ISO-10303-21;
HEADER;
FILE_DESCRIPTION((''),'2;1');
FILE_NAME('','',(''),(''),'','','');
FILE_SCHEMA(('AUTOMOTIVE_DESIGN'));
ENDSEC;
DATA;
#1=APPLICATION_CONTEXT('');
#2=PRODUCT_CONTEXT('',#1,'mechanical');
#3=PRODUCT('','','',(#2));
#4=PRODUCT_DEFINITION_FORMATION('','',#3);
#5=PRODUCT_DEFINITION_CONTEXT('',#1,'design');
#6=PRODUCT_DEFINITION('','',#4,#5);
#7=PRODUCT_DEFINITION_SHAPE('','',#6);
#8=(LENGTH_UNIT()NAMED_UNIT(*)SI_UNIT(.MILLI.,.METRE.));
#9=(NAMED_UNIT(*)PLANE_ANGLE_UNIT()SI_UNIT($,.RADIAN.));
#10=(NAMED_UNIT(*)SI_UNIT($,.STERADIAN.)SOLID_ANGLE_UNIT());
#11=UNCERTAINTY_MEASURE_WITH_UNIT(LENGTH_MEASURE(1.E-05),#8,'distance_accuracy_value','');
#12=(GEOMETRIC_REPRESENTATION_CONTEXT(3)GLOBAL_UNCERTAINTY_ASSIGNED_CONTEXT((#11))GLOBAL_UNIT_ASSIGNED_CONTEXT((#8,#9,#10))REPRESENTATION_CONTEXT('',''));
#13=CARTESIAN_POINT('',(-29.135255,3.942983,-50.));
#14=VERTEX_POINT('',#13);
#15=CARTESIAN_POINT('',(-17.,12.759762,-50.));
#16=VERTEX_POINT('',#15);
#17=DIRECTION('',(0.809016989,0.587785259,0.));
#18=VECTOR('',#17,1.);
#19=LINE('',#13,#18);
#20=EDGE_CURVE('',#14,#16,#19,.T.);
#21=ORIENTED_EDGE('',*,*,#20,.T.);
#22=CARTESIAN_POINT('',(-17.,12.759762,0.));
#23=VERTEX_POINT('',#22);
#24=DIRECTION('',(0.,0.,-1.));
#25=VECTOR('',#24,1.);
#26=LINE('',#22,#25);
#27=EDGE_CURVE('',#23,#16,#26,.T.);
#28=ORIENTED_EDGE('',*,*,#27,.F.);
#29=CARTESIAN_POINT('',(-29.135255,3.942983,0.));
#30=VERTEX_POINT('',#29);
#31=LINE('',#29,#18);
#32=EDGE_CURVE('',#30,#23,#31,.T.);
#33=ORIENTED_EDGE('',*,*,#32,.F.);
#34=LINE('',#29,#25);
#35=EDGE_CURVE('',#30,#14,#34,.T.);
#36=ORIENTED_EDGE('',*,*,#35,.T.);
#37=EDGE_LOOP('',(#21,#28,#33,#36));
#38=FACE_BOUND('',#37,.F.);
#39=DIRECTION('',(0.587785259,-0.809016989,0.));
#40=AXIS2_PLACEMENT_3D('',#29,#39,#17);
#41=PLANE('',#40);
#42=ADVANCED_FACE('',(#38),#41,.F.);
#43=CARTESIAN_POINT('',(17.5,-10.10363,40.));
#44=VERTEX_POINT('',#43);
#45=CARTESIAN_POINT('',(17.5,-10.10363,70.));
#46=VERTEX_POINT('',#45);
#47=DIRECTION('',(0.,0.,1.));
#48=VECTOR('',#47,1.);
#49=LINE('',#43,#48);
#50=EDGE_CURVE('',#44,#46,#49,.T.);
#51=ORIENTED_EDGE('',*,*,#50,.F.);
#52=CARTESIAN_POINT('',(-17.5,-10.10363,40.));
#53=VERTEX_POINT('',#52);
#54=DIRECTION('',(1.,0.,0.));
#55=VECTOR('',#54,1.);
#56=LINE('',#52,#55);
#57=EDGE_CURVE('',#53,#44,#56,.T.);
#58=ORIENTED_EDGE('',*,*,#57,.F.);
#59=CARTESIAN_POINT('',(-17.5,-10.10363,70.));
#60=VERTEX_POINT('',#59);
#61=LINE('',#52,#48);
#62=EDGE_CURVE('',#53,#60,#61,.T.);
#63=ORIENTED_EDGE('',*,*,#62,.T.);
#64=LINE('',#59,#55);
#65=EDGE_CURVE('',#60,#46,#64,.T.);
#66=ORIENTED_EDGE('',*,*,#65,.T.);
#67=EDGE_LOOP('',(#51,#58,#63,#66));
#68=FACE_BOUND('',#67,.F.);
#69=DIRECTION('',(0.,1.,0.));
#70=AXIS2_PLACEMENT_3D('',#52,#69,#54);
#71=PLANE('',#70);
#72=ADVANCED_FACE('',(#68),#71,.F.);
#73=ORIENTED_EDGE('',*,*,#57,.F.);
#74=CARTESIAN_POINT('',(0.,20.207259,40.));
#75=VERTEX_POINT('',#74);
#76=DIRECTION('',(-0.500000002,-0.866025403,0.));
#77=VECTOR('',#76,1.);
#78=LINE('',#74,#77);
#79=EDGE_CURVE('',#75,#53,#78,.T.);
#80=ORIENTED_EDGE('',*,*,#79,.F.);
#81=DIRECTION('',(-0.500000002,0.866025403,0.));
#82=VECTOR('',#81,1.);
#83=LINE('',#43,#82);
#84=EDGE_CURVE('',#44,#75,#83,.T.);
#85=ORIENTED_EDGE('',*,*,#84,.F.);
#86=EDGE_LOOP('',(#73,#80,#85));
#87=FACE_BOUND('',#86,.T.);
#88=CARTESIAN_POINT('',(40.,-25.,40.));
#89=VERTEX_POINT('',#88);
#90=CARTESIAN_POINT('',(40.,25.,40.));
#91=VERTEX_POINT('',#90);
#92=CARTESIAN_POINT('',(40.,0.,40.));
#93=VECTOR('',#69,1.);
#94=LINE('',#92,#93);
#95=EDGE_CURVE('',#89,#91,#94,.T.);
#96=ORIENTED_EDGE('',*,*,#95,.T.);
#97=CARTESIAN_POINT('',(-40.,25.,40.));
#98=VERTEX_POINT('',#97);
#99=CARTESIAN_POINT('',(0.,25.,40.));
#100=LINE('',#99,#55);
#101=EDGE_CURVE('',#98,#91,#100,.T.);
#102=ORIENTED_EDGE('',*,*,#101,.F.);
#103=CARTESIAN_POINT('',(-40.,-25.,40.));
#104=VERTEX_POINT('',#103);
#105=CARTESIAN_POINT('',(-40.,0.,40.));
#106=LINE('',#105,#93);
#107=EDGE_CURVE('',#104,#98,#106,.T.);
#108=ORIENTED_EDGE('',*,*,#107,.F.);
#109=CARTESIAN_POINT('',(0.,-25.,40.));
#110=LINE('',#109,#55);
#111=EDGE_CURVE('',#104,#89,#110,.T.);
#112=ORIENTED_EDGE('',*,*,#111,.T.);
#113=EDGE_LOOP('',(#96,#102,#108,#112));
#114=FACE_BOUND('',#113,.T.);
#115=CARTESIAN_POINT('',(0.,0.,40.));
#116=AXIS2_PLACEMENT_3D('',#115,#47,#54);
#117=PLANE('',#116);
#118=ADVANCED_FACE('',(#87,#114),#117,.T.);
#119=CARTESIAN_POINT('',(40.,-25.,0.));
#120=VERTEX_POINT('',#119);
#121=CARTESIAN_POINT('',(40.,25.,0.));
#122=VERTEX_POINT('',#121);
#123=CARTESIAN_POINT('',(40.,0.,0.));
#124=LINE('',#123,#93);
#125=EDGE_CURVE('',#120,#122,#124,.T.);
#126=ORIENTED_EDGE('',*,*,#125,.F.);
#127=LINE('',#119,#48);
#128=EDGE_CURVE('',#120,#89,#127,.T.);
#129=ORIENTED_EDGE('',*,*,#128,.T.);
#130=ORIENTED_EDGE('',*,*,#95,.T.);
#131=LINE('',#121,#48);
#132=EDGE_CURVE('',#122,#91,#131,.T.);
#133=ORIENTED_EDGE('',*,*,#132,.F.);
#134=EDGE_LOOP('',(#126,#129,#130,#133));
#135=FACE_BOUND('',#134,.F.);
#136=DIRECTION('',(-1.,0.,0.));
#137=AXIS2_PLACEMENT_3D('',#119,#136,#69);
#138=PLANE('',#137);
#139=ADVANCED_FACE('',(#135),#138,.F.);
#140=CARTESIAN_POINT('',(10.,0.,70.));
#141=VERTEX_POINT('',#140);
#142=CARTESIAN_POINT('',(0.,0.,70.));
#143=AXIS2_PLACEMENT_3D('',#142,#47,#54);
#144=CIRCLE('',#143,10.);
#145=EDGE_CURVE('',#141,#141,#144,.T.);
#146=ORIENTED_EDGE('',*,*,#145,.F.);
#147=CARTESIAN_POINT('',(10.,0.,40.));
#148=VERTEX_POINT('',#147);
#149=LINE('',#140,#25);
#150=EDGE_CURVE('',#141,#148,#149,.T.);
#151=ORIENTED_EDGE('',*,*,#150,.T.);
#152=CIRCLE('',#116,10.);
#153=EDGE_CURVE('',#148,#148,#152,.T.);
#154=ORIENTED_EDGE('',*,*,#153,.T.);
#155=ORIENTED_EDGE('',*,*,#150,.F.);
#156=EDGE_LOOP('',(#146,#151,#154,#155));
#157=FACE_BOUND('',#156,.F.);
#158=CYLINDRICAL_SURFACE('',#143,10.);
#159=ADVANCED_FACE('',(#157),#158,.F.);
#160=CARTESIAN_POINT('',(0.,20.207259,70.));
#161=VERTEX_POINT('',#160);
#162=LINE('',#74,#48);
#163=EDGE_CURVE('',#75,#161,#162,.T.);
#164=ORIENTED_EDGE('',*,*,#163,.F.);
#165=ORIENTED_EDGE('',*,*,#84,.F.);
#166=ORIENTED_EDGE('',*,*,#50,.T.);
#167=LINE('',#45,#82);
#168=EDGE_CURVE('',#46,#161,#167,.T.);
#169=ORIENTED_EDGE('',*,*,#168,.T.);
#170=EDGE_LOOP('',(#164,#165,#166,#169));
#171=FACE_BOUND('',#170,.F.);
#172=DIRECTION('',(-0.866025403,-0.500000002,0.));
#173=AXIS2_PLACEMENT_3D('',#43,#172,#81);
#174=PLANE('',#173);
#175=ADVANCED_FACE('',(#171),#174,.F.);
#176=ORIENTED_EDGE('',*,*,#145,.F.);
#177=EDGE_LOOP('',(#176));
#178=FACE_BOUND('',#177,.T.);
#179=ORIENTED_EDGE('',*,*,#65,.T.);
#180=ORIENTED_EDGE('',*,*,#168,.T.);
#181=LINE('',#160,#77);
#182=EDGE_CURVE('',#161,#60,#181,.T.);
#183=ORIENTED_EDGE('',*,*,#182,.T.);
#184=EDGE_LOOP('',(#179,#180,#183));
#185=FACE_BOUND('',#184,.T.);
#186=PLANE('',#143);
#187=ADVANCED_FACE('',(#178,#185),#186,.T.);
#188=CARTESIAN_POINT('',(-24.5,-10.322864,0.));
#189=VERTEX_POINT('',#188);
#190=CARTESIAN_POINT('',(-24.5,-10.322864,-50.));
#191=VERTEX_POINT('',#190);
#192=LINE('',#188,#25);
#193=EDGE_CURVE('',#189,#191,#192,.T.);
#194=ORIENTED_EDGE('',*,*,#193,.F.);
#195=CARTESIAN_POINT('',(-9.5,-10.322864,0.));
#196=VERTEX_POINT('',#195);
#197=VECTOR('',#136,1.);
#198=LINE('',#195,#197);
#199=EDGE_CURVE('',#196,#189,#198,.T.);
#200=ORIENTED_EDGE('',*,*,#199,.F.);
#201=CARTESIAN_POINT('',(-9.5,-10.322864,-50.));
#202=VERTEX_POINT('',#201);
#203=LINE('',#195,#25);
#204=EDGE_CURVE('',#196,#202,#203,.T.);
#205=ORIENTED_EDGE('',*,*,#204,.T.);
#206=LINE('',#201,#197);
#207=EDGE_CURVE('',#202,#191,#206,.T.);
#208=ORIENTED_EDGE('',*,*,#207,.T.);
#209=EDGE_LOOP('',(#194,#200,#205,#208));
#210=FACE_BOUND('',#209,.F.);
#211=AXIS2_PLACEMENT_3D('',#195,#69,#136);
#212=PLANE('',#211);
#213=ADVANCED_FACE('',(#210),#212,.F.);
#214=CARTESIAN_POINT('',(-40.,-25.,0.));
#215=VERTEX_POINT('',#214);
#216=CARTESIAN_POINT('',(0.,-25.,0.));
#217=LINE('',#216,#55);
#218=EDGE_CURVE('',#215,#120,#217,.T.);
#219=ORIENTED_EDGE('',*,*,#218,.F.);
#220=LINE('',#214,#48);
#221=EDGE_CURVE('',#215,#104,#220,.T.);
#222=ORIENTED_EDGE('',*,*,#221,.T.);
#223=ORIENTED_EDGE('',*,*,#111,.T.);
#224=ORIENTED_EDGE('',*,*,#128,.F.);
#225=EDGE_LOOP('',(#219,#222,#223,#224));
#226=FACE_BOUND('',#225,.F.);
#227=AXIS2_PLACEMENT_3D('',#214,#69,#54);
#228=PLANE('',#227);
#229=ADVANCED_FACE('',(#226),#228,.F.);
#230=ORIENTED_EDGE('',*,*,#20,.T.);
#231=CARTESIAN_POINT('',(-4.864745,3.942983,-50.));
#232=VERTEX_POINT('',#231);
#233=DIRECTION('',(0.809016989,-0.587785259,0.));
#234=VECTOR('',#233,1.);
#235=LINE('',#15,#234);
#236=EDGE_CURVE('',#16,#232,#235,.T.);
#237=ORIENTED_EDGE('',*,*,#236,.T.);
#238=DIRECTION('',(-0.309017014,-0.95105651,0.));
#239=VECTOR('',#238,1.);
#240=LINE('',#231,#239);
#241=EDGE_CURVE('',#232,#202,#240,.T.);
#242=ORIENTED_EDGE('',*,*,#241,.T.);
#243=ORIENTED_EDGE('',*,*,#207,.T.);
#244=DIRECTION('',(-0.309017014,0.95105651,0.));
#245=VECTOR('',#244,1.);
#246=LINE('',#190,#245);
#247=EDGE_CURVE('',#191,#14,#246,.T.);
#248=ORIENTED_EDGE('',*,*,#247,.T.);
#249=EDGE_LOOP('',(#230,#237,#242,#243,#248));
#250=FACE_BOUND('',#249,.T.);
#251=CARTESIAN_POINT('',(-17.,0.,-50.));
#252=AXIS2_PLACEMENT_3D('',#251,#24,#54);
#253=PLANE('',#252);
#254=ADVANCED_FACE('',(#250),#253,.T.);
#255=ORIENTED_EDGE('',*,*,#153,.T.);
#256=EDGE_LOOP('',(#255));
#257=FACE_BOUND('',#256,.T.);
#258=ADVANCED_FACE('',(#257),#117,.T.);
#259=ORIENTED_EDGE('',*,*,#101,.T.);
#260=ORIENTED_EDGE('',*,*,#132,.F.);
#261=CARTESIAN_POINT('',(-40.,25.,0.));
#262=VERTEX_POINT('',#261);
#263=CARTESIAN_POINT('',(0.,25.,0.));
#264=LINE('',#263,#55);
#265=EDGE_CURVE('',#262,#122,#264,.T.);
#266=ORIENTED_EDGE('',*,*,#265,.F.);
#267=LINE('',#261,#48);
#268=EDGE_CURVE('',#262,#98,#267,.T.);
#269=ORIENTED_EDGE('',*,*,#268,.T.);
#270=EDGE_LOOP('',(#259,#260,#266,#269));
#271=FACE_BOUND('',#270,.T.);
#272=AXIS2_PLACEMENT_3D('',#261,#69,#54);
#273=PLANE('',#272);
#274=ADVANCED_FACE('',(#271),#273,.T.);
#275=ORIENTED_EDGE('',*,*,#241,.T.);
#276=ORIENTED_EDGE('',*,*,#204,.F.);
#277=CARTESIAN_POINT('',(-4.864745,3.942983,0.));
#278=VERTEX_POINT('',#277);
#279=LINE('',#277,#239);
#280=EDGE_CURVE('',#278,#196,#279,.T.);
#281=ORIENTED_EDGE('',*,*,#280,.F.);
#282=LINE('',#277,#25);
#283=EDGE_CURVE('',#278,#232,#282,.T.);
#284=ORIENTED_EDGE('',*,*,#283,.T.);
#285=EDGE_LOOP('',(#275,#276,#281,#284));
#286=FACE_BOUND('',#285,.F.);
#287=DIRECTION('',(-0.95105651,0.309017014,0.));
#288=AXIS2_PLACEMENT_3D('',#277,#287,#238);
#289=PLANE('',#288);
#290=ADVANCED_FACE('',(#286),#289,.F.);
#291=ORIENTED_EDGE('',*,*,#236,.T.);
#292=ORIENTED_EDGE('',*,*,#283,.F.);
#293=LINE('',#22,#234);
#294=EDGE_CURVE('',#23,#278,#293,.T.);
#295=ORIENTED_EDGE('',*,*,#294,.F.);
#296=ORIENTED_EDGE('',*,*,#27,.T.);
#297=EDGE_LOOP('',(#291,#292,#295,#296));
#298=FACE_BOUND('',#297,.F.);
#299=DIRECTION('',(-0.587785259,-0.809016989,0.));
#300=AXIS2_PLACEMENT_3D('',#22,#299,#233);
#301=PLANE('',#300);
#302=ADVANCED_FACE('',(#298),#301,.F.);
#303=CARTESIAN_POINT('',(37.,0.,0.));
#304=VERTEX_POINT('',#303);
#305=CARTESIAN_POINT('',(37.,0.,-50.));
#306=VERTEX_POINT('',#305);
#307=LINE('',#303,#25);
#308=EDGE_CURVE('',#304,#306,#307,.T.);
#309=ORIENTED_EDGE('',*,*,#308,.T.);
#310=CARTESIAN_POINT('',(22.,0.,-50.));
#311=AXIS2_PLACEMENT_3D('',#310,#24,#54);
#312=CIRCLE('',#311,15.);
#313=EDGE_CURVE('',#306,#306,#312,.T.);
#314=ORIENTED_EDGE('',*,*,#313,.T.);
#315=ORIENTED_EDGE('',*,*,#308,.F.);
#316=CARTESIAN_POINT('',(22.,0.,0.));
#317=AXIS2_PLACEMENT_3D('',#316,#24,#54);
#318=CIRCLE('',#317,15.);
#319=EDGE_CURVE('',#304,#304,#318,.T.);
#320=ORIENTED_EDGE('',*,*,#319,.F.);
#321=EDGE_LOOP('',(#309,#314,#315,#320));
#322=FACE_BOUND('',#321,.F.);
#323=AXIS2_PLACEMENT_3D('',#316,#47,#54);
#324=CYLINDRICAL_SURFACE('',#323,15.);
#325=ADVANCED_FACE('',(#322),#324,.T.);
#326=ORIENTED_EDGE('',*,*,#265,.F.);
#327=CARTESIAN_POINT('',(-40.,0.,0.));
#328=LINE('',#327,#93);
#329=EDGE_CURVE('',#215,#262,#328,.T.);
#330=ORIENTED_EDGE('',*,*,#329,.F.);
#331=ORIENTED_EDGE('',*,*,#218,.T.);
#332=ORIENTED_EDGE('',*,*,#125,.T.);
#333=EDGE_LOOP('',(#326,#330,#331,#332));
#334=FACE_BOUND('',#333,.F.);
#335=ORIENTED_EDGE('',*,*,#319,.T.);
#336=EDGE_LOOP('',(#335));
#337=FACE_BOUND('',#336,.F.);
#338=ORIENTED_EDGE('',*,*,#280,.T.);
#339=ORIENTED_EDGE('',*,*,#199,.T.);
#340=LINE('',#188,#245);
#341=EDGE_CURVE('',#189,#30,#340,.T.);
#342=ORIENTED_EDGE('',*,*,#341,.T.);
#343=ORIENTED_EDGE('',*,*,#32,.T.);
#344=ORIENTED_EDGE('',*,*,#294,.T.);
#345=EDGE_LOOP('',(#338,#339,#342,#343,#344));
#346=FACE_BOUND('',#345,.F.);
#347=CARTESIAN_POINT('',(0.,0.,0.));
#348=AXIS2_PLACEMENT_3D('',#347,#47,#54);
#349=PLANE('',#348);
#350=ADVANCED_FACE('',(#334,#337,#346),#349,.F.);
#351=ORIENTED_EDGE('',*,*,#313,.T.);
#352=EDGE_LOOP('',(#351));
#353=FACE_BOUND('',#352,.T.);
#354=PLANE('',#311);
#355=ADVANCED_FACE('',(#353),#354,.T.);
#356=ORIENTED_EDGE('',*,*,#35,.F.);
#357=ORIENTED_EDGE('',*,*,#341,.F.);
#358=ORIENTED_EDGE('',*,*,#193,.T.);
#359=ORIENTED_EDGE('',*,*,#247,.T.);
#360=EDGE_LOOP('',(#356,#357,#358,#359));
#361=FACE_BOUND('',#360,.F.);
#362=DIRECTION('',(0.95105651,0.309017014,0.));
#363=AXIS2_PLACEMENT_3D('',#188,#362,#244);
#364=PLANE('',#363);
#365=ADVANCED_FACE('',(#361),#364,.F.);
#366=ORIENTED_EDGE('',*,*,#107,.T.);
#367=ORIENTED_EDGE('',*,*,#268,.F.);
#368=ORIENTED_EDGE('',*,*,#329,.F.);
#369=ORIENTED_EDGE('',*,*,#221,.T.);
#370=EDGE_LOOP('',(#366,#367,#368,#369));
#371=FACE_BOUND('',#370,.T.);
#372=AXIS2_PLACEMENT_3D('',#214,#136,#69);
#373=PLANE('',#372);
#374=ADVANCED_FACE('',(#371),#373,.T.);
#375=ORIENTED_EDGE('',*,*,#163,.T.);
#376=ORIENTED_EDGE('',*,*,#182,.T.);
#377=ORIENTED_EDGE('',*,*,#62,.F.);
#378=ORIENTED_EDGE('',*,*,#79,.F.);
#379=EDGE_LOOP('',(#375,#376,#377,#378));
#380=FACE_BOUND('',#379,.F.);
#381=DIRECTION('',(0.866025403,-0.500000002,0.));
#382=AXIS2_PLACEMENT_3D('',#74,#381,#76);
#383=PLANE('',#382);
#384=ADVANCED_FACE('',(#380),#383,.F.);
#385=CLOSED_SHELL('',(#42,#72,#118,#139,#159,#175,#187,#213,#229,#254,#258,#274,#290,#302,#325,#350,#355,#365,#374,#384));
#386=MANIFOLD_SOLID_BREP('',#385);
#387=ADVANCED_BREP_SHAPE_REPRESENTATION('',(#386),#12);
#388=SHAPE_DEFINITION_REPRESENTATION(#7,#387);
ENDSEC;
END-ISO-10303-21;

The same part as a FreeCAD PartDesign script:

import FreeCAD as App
import Part
import Sketcher
Q = App.Units.Quantity


def add_polygon(sketch, points):
    """Adds a closed chain of lines whose ends are joined by coincident constraints."""
    first, n = sketch.GeometryCount, len(points)
    for a, b in zip(points, points[1:] + points[:1]):
        sketch.addGeometry(Part.LineSegment(App.Vector(*a, 0), App.Vector(*b, 0)), False)
    for i in range(n):
        sketch.addConstraint(Sketcher.Constraint("Coincident", first + i, 2, first + (i + 1) % n, 1))

doc = App.newDocument("Part")
body = doc.addObject("PartDesign::Body", "Body")

# Sketch on XY plane
sketch1 = doc.addObject("Sketcher::SketchObject", "Sketch")
body.addObject(sketch1)
sketch1.AttachmentSupport = (doc.XY_Plane, [""])
sketch1.MapMode = "FlatFace"
add_polygon(sketch1, [(-40, 25), (-40, -25), (40, -25), (40, 25)])  # lines 0-3
sketch1.addConstraint([
    Sketcher.Constraint("Vertical", 0),
    Sketcher.Constraint("Horizontal", 1),
    Sketcher.Constraint("Vertical", 2),
    Sketcher.Constraint("Horizontal", 3),
    Sketcher.Constraint("Symmetric", 0, 2, 2, 2, -1, 1),
    Sketcher.Constraint("DistanceX", 1, 1, 1, 2, Q("80 mm")),
    Sketcher.Constraint("DistanceY", 0, 2, 0, 1, Q("50 mm")),
])
pad1 = doc.addObject("PartDesign::Pad", "Pad")
body.addObject(pad1)
pad1.Profile = sketch1
pad1.Length = 40

# Sketch on XY plane
sketch2 = doc.addObject("Sketcher::SketchObject", "Sketch001")
body.addObject(sketch2)
sketch2.AttachmentSupport = (doc.XY_Plane, [""])
sketch2.MapMode = "FlatFace"
sketch2.AttachmentOffset = App.Placement(App.Vector(0, 0, 40), App.Rotation())
add_polygon(sketch2, [(0, 20.207259), (-17.5, -10.10363), (17.5, -10.10363)])  # lines 0-2
sketch2.addConstraint([
    Sketcher.Constraint("Horizontal", 1),
    Sketcher.Constraint("PointOnObject", 2, 2, -2),
    Sketcher.Constraint("Equal", 0, 2),
    Sketcher.Constraint("DistanceX", 1, 1, 1, 2, Q("35 mm")),
    Sketcher.Constraint("Angle", 0, Q("-120 deg")),
    Sketcher.Constraint("DistanceY", 0, 2, -1, 1, Q("10.10363 mm")),
])
pad2 = doc.addObject("PartDesign::Pad", "Pad001")
body.addObject(pad2)
pad2.Profile = sketch2
pad2.Length = 30

# Sketch on XY plane
sketch3 = doc.addObject("Sketcher::SketchObject", "Sketch002")
body.addObject(sketch3)
sketch3.AttachmentSupport = (doc.XY_Plane, [""])
sketch3.MapMode = "FlatFace"
sketch3.AttachmentOffset = App.Placement(App.Vector(0, 0, 70), App.Rotation())
sketch3.addGeometry(Part.Circle(App.Vector(0, 0, 0), App.Vector(0, 0, 1), 10), False)
sketch3.addConstraint([
    Sketcher.Constraint("Coincident", 0, 3, -1, 1),
    Sketcher.Constraint("Diameter", 0, Q("20 mm")),
])
pocket1 = doc.addObject("PartDesign::Pocket", "Pocket")
body.addObject(pocket1)
pocket1.Profile = sketch3
pocket1.Length = 30

# Sketch on XY plane
sketch4 = doc.addObject("Sketcher::SketchObject", "Sketch003")
body.addObject(sketch4)
sketch4.AttachmentSupport = (doc.XY_Plane, [""])
sketch4.MapMode = "FlatFace"
add_polygon(sketch4, [(-9.5, -10.322864), (-24.5, -10.322864), (-29.135255, 3.942983), (-17, 12.759762), (-4.864745, 3.942983)])  # lines 0-4
sketch4.addConstraint([
    Sketcher.Constraint("Horizontal", 0),
    Sketcher.Constraint("Horizontal", 1, 2, 3, 2),
    Sketcher.Constraint("Equal", 1, 2),
    Sketcher.Constraint("Equal", 2, 3),
    Sketcher.Constraint("Equal", 3, 4),
    Sketcher.Constraint("DistanceX", 0, 2, 0, 1, Q("15 mm")),
    Sketcher.Constraint("Angle", 1, Q("108.000001 deg")),
    Sketcher.Constraint("Angle", 2, Q("36 deg")),
    Sketcher.Constraint("DistanceX", 2, 2, -1, 1, Q("17 mm")),
    Sketcher.Constraint("DistanceY", 0, 2, -1, 1, Q("10.322864 mm")),
])
pad3 = doc.addObject("PartDesign::Pad", "Pad002")
body.addObject(pad3)
pad3.Profile = sketch4
pad3.Length = 50
pad3.Reversed = True

# Sketch on XY plane
sketch5 = doc.addObject("Sketcher::SketchObject", "Sketch004")
body.addObject(sketch5)
sketch5.AttachmentSupport = (doc.XY_Plane, [""])
sketch5.MapMode = "FlatFace"
sketch5.addGeometry(Part.Circle(App.Vector(22, 0, 0), App.Vector(0, 0, 1), 15), False)
sketch5.addConstraint([
    Sketcher.Constraint("PointOnObject", 0, 3, -1),
    Sketcher.Constraint("Diameter", 0, Q("30 mm")),
    Sketcher.Constraint("DistanceX", -1, 1, 0, 3, Q("22 mm")),
])
pad4 = doc.addObject("PartDesign::Pad", "Pad003")
body.addObject(pad4)
pad4.Profile = sketch5
pad4.Length = 50
pad4.Reversed = True

doc.recompute()
